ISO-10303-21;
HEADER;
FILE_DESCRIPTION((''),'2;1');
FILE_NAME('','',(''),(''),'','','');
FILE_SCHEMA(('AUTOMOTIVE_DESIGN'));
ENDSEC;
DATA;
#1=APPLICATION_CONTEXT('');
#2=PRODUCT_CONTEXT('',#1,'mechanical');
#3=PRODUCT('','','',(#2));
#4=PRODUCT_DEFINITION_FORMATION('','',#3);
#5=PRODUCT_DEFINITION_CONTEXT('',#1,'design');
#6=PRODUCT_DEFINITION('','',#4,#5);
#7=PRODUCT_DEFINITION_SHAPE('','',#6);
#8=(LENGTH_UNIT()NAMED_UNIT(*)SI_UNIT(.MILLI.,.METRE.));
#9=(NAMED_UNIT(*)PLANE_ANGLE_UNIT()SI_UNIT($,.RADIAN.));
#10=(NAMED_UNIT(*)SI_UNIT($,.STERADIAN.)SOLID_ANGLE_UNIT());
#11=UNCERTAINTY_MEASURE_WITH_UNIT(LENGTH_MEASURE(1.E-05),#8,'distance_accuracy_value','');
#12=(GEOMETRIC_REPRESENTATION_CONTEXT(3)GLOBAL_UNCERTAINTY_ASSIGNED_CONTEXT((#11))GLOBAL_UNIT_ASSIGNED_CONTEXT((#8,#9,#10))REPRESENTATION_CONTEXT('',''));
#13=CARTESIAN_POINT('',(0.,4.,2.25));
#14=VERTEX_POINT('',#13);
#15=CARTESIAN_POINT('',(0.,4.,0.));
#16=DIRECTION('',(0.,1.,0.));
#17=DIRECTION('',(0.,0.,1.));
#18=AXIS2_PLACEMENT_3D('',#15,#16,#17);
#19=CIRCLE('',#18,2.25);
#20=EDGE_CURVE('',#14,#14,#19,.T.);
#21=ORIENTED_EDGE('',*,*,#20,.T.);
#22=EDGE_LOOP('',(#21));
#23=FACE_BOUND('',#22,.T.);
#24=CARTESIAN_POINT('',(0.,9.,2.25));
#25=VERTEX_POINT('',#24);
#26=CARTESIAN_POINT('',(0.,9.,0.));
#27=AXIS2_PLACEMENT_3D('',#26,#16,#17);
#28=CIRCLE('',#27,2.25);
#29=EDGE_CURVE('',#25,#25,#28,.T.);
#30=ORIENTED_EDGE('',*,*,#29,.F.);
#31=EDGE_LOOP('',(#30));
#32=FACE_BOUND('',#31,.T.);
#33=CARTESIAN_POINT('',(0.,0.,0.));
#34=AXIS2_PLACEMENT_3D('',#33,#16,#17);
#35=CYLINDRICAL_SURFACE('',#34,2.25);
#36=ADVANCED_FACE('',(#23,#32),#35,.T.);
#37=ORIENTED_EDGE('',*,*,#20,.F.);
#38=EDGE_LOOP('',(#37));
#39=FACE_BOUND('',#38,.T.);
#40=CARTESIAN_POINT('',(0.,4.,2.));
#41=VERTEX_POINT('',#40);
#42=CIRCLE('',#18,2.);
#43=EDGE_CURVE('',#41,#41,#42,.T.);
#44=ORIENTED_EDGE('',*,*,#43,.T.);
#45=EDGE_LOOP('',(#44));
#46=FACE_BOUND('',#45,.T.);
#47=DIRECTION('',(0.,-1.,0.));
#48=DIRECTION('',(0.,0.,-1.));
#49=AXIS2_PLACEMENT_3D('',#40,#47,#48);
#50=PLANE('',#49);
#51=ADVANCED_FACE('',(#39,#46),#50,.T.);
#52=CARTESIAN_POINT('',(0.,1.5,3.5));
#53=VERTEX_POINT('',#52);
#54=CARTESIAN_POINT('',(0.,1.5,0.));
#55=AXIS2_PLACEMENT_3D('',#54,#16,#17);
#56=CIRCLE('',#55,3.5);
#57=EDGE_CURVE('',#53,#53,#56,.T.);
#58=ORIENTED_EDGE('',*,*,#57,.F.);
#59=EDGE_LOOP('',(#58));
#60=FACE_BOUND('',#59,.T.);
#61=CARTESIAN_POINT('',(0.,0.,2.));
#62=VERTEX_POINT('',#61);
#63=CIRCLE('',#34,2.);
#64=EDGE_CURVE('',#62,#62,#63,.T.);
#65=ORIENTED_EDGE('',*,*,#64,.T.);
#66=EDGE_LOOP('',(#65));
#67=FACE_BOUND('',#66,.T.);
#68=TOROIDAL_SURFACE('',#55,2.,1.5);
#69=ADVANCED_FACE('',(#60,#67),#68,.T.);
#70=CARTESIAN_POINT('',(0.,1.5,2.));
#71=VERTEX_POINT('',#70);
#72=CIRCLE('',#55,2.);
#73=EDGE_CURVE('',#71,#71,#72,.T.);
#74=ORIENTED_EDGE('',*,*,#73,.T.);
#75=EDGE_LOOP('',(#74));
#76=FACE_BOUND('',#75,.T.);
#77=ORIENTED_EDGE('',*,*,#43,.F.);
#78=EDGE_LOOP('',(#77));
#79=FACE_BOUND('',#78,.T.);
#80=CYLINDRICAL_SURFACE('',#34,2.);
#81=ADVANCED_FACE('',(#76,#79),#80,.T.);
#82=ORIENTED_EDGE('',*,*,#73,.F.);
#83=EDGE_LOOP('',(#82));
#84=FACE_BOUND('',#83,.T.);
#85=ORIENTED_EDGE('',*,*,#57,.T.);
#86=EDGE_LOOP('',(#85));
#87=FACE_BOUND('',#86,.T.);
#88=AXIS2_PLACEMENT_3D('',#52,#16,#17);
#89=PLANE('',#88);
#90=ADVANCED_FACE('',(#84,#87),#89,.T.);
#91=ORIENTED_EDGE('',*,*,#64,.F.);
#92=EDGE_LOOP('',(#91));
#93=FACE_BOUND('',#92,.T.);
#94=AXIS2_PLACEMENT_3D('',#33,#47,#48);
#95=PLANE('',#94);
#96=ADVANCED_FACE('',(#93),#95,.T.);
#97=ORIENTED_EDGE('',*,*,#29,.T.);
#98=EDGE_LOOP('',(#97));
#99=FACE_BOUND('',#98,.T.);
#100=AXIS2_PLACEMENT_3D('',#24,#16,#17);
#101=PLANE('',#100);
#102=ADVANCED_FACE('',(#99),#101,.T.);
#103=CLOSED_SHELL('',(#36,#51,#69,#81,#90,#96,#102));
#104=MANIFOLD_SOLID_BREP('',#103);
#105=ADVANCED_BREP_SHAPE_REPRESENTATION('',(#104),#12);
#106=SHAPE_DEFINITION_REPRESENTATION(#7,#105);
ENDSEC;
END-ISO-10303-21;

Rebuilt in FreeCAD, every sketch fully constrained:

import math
import FreeCAD as App
import Part
import Sketcher
Q = App.Units.Quantity

doc = App.newDocument("Part")
body = doc.addObject("PartDesign::Body", "Body")

# Sketch on YZ plane
sketch1 = doc.addObject("Sketcher::SketchObject", "Sketch")
body.addObject(sketch1)
sketch1.AttachmentSupport = (doc.YZ_Plane, [""])
sketch1.MapMode = "FlatFace"
sketch1.addGeometry([
    Part.LineSegment(App.Vector(0, 2, 0), App.Vector(0, 0, 0)),  # 0
    Part.LineSegment(App.Vector(0, 0, 0), App.Vector(9, 0, 0)),  # 1
    Part.LineSegment(App.Vector(9, 0, 0), App.Vector(9, 2.25, 0)),  # 2
    Part.LineSegment(App.Vector(9, 2.25, 0), App.Vector(4, 2.25, 0)),  # 3
    Part.LineSegment(App.Vector(4, 2.25, 0), App.Vector(4, 2, 0)),  # 4
    Part.LineSegment(App.Vector(4, 2, 0), App.Vector(1.5, 2, 0)),  # 5
    Part.LineSegment(App.Vector(1.5, 2, 0), App.Vector(1.5, 3.5, 0)),  # 6
    Part.ArcOfCircle(Part.Circle(App.Vector(1.5, 2, 0), App.Vector(0, 0, 1), 1.5), math.radians(90), math.radians(180)),  # 7
], False)
sketch1.addConstraint([
    Sketcher.Constraint("Coincident", 0, 2, 1, 1),
    Sketcher.Constraint("Coincident", 1, 2, 2, 1),
    Sketcher.Constraint("Coincident", 2, 2, 3, 1),
    Sketcher.Constraint("Coincident", 3, 2, 4, 1),
    Sketcher.Constraint("Coincident", 4, 2, 5, 1),
    Sketcher.Constraint("Coincident", 5, 2, 6, 1),
    Sketcher.Constraint("Coincident", 6, 2, 7, 1),
    Sketcher.Constraint("Tangent", 7, 2, 0, 1),
    Sketcher.Constraint("Vertical", 0),
    Sketcher.Constraint("Horizontal", 1),
    Sketcher.Constraint("Vertical", 2),
    Sketcher.Constraint("Horizontal", 3),
    Sketcher.Constraint("Vertical", 4),
    Sketcher.Constraint("Horizontal", 5),
    Sketcher.Constraint("Vertical", 6),
    Sketcher.Constraint("Coincident", 0, 2, -1, 1),
    Sketcher.Constraint("Coincident", 5, 2, 7, 3),
    Sketcher.Constraint("Radius", 7, Q("1.5 mm")),
    Sketcher.Constraint("DistanceX", 1, 1, 1, 2, Q("9 mm")),
    Sketcher.Constraint("DistanceX", 3, 2, 3, 1, Q("5 mm")),
    Sketcher.Constraint("DistanceY", 0, 2, 0, 1, Q("2 mm")),
    Sketcher.Constraint("DistanceY", 2, 1, 2, 2, Q("2.25 mm")),
])
revolution = doc.addObject("PartDesign::Revolution", "Revolution")
body.addObject(revolution)
revolution.Profile = sketch1
revolution.ReferenceAxis = (sketch1, ["H_Axis"])
revolution.Angle = 360

doc.recompute()
